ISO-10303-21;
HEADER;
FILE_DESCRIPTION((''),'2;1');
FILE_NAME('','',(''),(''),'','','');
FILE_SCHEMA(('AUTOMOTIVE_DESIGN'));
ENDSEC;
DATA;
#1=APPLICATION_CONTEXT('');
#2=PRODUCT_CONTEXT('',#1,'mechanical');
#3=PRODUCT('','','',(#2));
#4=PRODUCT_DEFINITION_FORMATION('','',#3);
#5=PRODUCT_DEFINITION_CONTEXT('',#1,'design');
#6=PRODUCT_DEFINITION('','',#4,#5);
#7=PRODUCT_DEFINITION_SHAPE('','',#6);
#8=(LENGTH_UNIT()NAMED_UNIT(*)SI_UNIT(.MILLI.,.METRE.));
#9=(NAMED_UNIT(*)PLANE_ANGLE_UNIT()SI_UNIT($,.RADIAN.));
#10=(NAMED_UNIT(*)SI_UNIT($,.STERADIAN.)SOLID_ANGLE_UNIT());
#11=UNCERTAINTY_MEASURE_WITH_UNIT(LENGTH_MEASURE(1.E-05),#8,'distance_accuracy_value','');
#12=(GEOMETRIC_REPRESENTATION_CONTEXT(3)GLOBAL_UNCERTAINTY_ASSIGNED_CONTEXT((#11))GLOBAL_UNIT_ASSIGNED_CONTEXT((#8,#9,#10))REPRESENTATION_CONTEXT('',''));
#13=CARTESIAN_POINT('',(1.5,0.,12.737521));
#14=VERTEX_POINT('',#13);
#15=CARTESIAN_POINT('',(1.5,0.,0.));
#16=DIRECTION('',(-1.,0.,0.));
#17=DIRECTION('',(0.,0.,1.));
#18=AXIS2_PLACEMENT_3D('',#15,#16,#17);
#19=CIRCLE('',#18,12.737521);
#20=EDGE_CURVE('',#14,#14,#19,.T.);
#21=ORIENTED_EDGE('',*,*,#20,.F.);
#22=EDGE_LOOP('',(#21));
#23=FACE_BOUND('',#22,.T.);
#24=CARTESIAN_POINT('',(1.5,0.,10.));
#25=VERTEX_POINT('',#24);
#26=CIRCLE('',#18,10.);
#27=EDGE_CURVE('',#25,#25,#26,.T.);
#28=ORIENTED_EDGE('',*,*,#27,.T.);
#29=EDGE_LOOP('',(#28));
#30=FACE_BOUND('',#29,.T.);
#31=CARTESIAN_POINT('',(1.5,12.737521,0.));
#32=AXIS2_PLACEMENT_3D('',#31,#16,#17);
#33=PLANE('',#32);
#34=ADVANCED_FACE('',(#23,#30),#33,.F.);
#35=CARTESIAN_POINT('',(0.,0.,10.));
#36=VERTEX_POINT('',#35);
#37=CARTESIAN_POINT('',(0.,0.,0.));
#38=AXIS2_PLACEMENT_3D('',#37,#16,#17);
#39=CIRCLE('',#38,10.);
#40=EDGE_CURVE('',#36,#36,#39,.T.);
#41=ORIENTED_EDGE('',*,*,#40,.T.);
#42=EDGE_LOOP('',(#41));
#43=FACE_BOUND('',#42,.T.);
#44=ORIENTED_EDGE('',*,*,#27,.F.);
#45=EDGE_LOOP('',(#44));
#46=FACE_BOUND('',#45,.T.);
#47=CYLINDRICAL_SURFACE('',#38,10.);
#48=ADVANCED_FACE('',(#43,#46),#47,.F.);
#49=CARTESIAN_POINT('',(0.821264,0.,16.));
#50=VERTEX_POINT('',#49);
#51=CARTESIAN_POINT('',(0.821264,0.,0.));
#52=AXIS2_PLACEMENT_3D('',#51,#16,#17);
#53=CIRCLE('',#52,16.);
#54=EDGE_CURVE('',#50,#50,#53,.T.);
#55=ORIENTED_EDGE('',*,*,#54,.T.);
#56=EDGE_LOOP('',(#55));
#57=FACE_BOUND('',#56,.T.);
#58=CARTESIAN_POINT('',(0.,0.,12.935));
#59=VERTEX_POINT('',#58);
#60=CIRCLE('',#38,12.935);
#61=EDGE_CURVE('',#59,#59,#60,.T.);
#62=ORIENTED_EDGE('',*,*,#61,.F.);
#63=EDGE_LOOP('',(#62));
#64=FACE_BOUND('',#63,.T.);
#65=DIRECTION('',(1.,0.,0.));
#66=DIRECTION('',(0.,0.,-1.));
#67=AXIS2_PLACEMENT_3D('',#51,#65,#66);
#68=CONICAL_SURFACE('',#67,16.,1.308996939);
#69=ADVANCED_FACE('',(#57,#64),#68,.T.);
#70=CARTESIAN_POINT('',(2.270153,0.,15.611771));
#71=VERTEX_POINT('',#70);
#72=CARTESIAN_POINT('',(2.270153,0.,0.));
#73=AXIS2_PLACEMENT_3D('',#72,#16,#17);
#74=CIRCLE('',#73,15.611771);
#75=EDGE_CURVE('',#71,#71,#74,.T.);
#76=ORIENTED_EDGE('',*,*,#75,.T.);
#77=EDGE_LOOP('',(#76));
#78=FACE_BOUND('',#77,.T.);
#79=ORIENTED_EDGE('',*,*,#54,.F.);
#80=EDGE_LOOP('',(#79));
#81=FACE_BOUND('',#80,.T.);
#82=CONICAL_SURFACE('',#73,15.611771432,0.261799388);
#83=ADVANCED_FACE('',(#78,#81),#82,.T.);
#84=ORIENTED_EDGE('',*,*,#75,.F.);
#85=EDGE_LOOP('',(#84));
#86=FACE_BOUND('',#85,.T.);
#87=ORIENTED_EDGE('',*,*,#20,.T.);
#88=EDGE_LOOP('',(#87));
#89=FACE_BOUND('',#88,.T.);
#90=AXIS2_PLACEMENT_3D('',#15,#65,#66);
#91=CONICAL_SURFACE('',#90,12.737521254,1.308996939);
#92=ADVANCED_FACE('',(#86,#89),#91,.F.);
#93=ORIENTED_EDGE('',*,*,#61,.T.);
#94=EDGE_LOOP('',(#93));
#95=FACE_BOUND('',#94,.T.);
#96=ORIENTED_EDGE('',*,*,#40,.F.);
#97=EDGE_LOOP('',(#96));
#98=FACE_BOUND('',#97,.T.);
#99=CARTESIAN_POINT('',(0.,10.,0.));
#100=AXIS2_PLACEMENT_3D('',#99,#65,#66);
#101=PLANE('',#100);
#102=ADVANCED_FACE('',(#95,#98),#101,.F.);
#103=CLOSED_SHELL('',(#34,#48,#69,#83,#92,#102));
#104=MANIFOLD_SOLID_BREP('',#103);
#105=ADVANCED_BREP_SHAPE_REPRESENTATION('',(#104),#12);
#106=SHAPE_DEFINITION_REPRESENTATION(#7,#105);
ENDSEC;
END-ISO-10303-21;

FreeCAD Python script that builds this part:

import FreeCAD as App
import Part
import Sketcher
Q = App.Units.Quantity


def add_polygon(sketch, points):
    """Adds a closed chain of lines whose ends are joined by coincident constraints."""
    first, n = sketch.GeometryCount, len(points)
    for a, b in zip(points, points[1:] + points[:1]):
        sketch.addGeometry(Part.LineSegment(App.Vector(*a, 0), App.Vector(*b, 0)), False)
    for i in range(n):
        sketch.addConstraint(Sketcher.Constraint("Coincident", first + i, 2, first + (i + 1) % n, 1))

doc = App.newDocument("Part")
body = doc.addObject("PartDesign::Body", "Body")

# Sketch on XY plane
sketch1 = doc.addObject("Sketcher::SketchObject", "Sketch")
body.addObject(sketch1)
sketch1.AttachmentSupport = (doc.XY_Plane, [""])
sketch1.MapMode = "FlatFace"
add_polygon(sketch1, [(0, 12.935), (0, 10), (1.5, 10), (1.5, 12.737521), (2.270153, 15.611771), (0.821264, 16)])  # lines 0-5
sketch1.addConstraint(Sketcher.Constraint("Vertical", 0))
sketch1.addConstraint(Sketcher.Constraint("Horizontal", 1))
sketch1.addConstraint(Sketcher.Constraint("Vertical", 2))
sketch1.addConstraint(Sketcher.Constraint("PointOnObject", 0, 2, -2))
sketch1.addConstraint(Sketcher.Constraint("Perpendicular", 3, 4))
sketch1.addConstraint(Sketcher.Constraint("Perpendicular", 4, 5))
sketch1.addConstraint(Sketcher.Constraint("Angle", 3, Q("75 deg")))
sketch1.addConstraint(Sketcher.Constraint("DistanceX", 1, 1, 1, 2, Q("1.5 mm")))
sketch1.addConstraint(Sketcher.Constraint("DistanceY", -1, 1, 0, 2, Q("10 mm")))
sketch1.addConstraint(Sketcher.Constraint("DistanceY", -1, 1, 4, 2, Q("16 mm")))
sketch1.addConstraint(Sketcher.Constraint("Distance", 4, Q("1.5 mm")))
sketch1.addConstraint(Sketcher.Constraint("DistanceY", 0, 2, 0, 1, Q("2.935 mm")))
revolution = doc.addObject("PartDesign::Revolution", "Revolution")
body.addObject(revolution)
revolution.Profile = sketch1
revolution.ReferenceAxis = (sketch1, ["H_Axis"])
revolution.Angle = 360

doc.recompute()
